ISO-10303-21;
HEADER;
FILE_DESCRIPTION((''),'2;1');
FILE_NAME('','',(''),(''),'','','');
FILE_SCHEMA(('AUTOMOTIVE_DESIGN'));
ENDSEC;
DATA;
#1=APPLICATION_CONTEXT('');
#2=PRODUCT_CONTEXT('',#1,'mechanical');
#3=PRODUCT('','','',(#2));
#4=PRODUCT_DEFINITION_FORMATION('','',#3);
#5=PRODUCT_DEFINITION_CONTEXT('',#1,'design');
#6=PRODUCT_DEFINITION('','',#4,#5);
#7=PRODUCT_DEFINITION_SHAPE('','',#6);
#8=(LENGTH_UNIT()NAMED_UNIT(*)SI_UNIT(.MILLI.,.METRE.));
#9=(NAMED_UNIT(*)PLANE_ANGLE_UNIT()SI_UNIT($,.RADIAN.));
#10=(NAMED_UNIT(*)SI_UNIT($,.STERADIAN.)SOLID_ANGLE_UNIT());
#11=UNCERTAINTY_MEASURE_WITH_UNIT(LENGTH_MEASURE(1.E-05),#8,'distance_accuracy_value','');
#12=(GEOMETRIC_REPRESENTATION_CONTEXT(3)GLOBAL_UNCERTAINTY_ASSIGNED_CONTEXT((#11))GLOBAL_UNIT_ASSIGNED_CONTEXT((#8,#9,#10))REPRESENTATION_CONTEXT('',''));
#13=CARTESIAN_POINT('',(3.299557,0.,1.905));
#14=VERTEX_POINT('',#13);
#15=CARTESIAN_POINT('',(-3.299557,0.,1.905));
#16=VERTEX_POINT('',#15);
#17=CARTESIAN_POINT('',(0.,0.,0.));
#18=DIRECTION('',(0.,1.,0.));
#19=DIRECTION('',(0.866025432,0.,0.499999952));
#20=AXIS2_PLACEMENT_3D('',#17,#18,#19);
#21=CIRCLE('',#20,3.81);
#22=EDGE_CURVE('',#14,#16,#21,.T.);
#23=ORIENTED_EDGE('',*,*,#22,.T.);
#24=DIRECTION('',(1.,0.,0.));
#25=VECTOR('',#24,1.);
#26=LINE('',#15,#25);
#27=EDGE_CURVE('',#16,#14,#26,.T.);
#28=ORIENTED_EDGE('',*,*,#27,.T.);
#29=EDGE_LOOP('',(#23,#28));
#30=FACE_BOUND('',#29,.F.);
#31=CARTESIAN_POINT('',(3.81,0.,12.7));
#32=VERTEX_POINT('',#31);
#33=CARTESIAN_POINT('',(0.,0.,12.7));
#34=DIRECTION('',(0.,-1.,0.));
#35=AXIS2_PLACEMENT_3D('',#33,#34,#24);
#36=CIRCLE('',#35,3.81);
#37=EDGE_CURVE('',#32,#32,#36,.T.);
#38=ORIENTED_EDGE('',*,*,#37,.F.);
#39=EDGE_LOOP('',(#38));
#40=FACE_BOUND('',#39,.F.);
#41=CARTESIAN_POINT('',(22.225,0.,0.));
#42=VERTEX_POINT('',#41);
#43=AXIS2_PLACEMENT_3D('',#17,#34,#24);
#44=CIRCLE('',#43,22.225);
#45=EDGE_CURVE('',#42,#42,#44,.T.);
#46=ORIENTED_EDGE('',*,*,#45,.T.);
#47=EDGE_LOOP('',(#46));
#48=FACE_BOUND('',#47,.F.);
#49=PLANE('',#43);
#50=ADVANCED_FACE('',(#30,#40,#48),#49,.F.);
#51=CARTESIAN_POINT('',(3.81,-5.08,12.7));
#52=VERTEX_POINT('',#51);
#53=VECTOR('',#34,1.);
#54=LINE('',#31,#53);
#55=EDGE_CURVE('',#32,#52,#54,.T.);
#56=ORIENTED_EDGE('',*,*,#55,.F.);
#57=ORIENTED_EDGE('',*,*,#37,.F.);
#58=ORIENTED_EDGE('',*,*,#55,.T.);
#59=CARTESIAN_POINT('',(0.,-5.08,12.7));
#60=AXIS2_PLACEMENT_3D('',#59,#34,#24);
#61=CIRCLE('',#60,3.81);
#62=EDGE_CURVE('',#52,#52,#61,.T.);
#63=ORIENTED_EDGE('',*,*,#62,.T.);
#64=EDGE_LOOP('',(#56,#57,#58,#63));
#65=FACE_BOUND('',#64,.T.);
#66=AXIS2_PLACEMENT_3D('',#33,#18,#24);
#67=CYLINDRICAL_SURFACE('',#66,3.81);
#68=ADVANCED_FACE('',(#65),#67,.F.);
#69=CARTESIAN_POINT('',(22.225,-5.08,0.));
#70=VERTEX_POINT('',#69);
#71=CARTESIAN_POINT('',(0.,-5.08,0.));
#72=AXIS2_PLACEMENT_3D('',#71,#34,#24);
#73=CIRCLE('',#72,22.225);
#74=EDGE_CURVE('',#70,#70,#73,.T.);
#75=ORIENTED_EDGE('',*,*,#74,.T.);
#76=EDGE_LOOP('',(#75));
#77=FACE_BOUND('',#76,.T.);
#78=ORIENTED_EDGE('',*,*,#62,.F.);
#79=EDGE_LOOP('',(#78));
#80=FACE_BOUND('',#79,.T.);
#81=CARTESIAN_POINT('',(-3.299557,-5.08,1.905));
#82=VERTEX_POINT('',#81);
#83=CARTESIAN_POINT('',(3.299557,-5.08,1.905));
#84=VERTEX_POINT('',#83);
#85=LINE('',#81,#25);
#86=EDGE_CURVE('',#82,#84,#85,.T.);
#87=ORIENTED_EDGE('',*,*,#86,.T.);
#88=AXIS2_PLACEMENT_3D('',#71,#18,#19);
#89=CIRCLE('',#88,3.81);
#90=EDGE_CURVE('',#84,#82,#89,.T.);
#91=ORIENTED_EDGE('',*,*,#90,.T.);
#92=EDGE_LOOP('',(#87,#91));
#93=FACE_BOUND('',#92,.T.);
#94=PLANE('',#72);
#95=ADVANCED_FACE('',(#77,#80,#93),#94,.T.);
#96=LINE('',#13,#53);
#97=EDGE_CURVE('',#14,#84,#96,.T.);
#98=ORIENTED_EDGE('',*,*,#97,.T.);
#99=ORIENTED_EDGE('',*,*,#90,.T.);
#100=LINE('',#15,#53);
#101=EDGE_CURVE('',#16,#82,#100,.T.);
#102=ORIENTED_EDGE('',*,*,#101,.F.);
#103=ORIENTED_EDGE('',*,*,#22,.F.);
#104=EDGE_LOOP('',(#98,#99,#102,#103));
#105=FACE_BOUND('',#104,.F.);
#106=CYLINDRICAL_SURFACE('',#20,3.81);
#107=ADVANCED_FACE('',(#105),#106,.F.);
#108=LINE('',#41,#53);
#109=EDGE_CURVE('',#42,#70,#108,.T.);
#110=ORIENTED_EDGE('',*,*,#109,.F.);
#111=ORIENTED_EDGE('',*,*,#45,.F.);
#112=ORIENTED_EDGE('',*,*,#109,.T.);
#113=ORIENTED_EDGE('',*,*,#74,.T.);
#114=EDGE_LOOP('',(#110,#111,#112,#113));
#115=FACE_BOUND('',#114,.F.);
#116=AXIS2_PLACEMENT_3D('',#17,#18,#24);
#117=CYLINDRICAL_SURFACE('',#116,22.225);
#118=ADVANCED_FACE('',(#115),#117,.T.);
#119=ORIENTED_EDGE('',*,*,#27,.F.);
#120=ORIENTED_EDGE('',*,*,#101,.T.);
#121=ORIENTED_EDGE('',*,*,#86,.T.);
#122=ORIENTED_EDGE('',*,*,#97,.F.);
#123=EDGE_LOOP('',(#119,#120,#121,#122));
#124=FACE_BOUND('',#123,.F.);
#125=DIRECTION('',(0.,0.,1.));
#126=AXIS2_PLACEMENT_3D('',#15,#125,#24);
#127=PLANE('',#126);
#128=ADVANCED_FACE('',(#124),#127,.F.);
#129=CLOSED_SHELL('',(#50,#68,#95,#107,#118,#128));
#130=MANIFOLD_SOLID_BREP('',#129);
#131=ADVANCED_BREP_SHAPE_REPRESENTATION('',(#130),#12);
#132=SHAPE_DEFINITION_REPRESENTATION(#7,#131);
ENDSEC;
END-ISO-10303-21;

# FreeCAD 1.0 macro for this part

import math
import FreeCAD as App
import Part
import Sketcher

V = App.Vector
Q = App.Units.Quantity

doc = App.newDocument("Part")
body = doc.addObject("PartDesign::Body", "Body")

# Sketch on XZ plane
sketch1 = doc.addObject("Sketcher::SketchObject", "Sketch")
body.addObject(sketch1)
sketch1.AttachmentSupport = (doc.XZ_Plane, [""])
sketch1.MapMode = "FlatFace"
sketch1.addGeometry([
    Part.Circle(V(0, 0, 0), V(0, 0, 1), 22.2),
    Part.LineSegment(V(-3.3, 1.9, 0), V(3.3, 1.9, 0)),
    Part.ArcOfCircle(Part.Circle(V(0, 0, 0), V(0, 0, 1), 3.8), math.radians(150), math.radians(390)),
    Part.Circle(V(0, 12.7, 0), V(0, 0, 1), 3.8),
], False)
sketch1.addConstraint([
    Sketcher.Constraint("Coincident", 1, 1, 2, 1),
    Sketcher.Constraint("Coincident", 2, 2, 1, 2),
    Sketcher.Constraint("Horizontal", 1),
    Sketcher.Constraint("Coincident", 0, 3, -1, 1),
    Sketcher.Constraint("Coincident", 2, 3, -1, 1),
    Sketcher.Constraint("Equal", 2, 3),
    Sketcher.Constraint("PointOnObject", 3, 3, -2),
    Sketcher.Constraint("Diameter", 3, Q("0.3 in")),
    Sketcher.Constraint("Diameter", 0, Q("1.75 in")),
    Sketcher.Constraint("DistanceY", -1, 1, 3, 3, Q("0.5 in")),
    Sketcher.Constraint("DistanceY", -1, 1, 1, 1, Q("0.075 in")),
])
pad1 = doc.addObject("PartDesign::Pad", "Pad")
body.addObject(pad1)
pad1.Profile = sketch1
pad1.Length = Q("0.2 in")

doc.recompute()
